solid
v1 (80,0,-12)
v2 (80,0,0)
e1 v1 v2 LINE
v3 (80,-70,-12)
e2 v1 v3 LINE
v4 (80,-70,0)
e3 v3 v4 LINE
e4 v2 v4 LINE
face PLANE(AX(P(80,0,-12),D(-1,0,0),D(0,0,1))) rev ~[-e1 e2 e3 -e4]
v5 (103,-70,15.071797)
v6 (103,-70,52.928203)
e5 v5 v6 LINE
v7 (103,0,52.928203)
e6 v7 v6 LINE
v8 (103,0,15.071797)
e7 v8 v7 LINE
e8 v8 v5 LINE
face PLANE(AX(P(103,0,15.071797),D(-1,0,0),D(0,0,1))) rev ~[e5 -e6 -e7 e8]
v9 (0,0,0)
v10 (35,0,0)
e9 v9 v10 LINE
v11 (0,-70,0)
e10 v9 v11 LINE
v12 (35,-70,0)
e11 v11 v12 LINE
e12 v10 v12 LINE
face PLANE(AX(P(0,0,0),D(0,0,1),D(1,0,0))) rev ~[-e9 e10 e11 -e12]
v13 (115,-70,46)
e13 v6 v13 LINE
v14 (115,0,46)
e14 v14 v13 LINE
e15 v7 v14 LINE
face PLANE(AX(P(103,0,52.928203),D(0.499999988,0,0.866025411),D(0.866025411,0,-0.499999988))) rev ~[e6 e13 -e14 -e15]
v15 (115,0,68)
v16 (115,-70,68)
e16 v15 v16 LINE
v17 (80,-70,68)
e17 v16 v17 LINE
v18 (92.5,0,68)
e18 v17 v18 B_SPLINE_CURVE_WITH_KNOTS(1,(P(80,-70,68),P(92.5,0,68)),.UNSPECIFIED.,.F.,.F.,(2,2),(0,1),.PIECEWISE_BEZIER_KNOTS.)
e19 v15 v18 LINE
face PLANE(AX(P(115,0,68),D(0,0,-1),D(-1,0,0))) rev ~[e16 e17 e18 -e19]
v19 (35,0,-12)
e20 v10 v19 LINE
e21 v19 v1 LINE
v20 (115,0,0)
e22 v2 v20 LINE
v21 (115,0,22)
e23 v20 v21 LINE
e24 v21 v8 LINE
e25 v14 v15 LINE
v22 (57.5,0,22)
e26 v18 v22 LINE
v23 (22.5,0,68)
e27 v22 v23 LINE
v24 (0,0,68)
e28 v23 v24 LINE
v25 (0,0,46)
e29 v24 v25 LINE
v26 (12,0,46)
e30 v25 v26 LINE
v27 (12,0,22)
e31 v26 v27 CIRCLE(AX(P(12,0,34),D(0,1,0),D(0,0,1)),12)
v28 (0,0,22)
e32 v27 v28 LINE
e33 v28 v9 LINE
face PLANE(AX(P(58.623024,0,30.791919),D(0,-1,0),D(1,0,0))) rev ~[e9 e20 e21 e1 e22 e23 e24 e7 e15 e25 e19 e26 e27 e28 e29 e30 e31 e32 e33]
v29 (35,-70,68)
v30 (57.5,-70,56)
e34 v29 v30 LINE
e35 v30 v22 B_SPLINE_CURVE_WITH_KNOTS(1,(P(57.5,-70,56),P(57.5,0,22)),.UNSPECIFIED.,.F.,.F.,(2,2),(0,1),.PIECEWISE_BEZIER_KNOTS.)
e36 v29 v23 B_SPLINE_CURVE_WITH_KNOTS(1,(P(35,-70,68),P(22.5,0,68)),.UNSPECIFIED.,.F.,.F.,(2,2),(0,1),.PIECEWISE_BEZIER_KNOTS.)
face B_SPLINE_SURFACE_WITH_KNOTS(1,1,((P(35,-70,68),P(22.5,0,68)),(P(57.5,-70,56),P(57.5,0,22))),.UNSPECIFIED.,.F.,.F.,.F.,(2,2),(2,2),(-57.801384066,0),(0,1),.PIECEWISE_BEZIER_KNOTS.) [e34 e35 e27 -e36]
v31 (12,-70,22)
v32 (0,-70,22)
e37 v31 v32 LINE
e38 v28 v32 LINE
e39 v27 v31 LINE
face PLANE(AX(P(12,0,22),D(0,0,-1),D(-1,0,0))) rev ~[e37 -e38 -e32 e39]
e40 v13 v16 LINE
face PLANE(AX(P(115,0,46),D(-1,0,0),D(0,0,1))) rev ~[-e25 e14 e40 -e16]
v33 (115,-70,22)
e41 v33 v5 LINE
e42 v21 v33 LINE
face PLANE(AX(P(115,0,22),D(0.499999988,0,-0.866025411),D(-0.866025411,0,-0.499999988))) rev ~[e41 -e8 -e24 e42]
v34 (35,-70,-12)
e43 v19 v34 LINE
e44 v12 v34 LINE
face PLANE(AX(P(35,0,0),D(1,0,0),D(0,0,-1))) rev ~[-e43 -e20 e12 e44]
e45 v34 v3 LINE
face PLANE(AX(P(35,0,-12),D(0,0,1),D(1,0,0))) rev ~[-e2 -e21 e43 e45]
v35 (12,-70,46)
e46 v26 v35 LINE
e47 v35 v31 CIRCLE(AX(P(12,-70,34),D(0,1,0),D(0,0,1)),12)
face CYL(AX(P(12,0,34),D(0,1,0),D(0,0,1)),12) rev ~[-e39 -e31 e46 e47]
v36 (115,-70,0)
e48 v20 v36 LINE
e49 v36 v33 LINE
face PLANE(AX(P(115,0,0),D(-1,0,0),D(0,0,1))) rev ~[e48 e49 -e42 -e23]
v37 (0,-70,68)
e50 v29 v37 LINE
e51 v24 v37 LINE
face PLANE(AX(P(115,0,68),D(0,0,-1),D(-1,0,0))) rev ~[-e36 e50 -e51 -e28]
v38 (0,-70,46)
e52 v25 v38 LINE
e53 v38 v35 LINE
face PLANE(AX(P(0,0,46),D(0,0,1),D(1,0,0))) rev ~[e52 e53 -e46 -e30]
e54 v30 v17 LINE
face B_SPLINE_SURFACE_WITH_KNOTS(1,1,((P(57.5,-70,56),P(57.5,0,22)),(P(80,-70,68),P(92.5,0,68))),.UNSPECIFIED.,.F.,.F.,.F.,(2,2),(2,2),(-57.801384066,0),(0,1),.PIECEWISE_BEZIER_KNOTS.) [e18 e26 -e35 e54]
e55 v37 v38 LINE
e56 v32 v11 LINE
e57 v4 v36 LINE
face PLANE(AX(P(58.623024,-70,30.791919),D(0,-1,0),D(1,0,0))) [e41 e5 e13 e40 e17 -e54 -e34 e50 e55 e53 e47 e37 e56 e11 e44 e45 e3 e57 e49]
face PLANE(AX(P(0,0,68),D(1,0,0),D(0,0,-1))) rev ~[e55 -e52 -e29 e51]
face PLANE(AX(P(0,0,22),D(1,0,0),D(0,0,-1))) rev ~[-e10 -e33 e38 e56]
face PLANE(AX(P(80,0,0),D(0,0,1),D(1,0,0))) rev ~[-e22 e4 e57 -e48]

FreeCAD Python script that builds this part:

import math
import FreeCAD as App
import Part
import Sketcher

V = App.Vector
Q = App.Units.Quantity


def add_polygon(sketch, points):
    """Adds a closed chain of lines whose ends are joined by coincident constraints."""
    first, n = sketch.GeometryCount, len(points)
    for a, b in zip(points, points[1:] + points[:1]):
        sketch.addGeometry(Part.LineSegment(App.Vector(*a, 0), App.Vector(*b, 0)), False)
    for i in range(n):
        sketch.addConstraint(Sketcher.Constraint("Coincident", first + i, 2, first + (i + 1) % n, 1))

doc = App.newDocument("Part")
params = doc.addObject("Spreadsheet::Sheet", "Params")
for row, (alias, value) in enumerate([
    ("sketch1_radius", "12 mm"),
    ("sketch1_width", "35 mm"),
    ("sketch1_width2", "45 mm"),
    ("sketch1_width3", "12 mm"),
    ("sketch1_height", "22 mm"),
    ("pad1_length", "70 mm"),
    ("sketch2_width", "45 mm"),
    ("sketch3_width", "70 mm"),
], start=1):
    params.set(f"A{row}", alias)
    params.set(f"B{row}", "=" + value)
    params.setAlias(f"B{row}", alias)

body = doc.addObject("PartDesign::Body", "Body")

# Sketch on XZ plane
sketch1 = doc.addObject("Sketcher::SketchObject", "Sketch")
body.addObject(sketch1)
sketch1.AttachmentSupport = (doc.XZ_Plane, [""])
sketch1.MapMode = "FlatFace"
sketch1.addGeometry(Part.LineSegment(V(0, 22, 0), V(0, 0, 0)), False)
sketch1.addGeometry(Part.LineSegment(V(0, 0, 0), V(35, 0, 0)), False)
sketch1.addGeometry(Part.LineSegment(V(35, 0, 0), V(35, -12, 0)), False)
sketch1.addGeometry(Part.LineSegment(V(35, -12, 0), V(80, -12, 0)), False)
sketch1.addGeometry(Part.LineSegment(V(80, -12, 0), V(80, 0, 0)), False)
sketch1.addGeometry(Part.LineSegment(V(80, 0, 0), V(115, 0, 0)), False)
sketch1.addGeometry(Part.LineSegment(V(115, 0, 0), V(115, 22, 0)), False)
sketch1.addGeometry(Part.LineSegment(V(115, 22, 0), V(103, 15, 0)), False)
sketch1.addGeometry(Part.LineSegment(V(103, 15, 0), V(103, 53, 0)), False)
sketch1.addGeometry(Part.LineSegment(V(103, 53, 0), V(115, 46, 0)), False)
sketch1.addGeometry(Part.LineSegment(V(115, 46, 0), V(115, 68, 0)), False)
sketch1.addGeometry(Part.LineSegment(V(115, 68, 0), V(0, 68, 0)), False)
sketch1.addGeometry(Part.LineSegment(V(0, 68, 0), V(0, 46, 0)), False)
sketch1.addGeometry(Part.LineSegment(V(0, 46, 0), V(12, 46, 0)), False)
sketch1.addGeometry(Part.ArcOfCircle(Part.Circle(V(12, 34, 0), V(0, 0, 1), 12), math.radians(-90), math.radians(90)), False)
sketch1.addGeometry(Part.LineSegment(V(12, 22, 0), V(0, 22, 0)), False)
sketch1.addConstraint(Sketcher.Constraint("Coincident", 0, 2, 1, 1))
sketch1.addConstraint(Sketcher.Constraint("Coincident", 1, 2, 2, 1))
sketch1.addConstraint(Sketcher.Constraint("Coincident", 2, 2, 3, 1))
sketch1.addConstraint(Sketcher.Constraint("Coincident", 3, 2, 4, 1))
sketch1.addConstraint(Sketcher.Constraint("Coincident", 4, 2, 5, 1))
sketch1.addConstraint(Sketcher.Constraint("Coincident", 5, 2, 6, 1))
sketch1.addConstraint(Sketcher.Constraint("Coincident", 6, 2, 7, 1))
sketch1.addConstraint(Sketcher.Constraint("Coincident", 7, 2, 8, 1))
sketch1.addConstraint(Sketcher.Constraint("Coincident", 8, 2, 9, 1))
sketch1.addConstraint(Sketcher.Constraint("Coincident", 9, 2, 10, 1))
sketch1.addConstraint(Sketcher.Constraint("Coincident", 10, 2, 11, 1))
sketch1.addConstraint(Sketcher.Constraint("Coincident", 11, 2, 12, 1))
sketch1.addConstraint(Sketcher.Constraint("Coincident", 12, 2, 13, 1))
sketch1.addConstraint(Sketcher.Constraint("Tangent", 13, 2, 14, 2))
sketch1.addConstraint(Sketcher.Constraint("Tangent", 14, 1, 15, 1))
sketch1.addConstraint(Sketcher.Constraint("Coincident", 15, 2, 0, 1))
sketch1.addConstraint(Sketcher.Constraint("Vertical", 0))
sketch1.addConstraint(Sketcher.Constraint("Horizontal", 1))
sketch1.addConstraint(Sketcher.Constraint("Vertical", 2))
sketch1.addConstraint(Sketcher.Constraint("Horizontal", 3))
sketch1.addConstraint(Sketcher.Constraint("Vertical", 4))
sketch1.addConstraint(Sketcher.Constraint("Horizontal", 5))
sketch1.addConstraint(Sketcher.Constraint("Vertical", 6))
sketch1.addConstraint(Sketcher.Constraint("Vertical", 8))
sketch1.addConstraint(Sketcher.Constraint("Vertical", 10))
sketch1.addConstraint(Sketcher.Constraint("Horizontal", 11))
sketch1.addConstraint(Sketcher.Constraint("Vertical", 12))
sketch1.addConstraint(Sketcher.Constraint("Horizontal", 13))
sketch1.addConstraint(Sketcher.Constraint("Horizontal", 15))
sketch1.addConstraint(Sketcher.Constraint("Coincident", 0, 2, -1, 1))
sketch1.addConstraint(Sketcher.Constraint("PointOnObject", 4, 2, -1))
sketch1.addConstraint(Sketcher.Constraint("PointOnObject", 11, 2, -2))
sketch1.addConstraint(Sketcher.Constraint("Horizontal", 9, 2, 12, 2))
sketch1.addConstraint(Sketcher.Constraint("Horizontal", 6, 2, 14, 1))
sketch1.addConstraint(Sketcher.Constraint("Vertical", 6, 2, 9, 2))
sketch1.addConstraint(Sketcher.Constraint("Equal", 1, 5))
sketch1.addConstraint(Sketcher.Constraint("Equal", 15, 2))
sketch1.addConstraint(Sketcher.Constraint("Equal", 6, 10))
sketch1.addConstraint(Sketcher.Constraint("Equal", 7, 9))
sketch1.addConstraint(Sketcher.Constraint("Radius", 14, Q("12 mm")))
sketch1.addConstraint(Sketcher.Constraint("DistanceX", 1, 1, 1, 2, Q("35 mm")))
sketch1.addConstraint(Sketcher.Constraint("DistanceX", 3, 1, 3, 2, Q("45 mm")))
sketch1.addConstraint(Sketcher.Constraint("DistanceX", 13, 1, 13, 2, Q("12 mm")))
sketch1.addConstraint(Sketcher.Constraint("DistanceY", 0, 2, 0, 1, Q("22 mm")))
sketch1.addConstraint(Sketcher.Constraint("Angle", 7, Q("-150.000001 deg")))
sketch1.addConstraint(Sketcher.Constraint("DistanceX", -1, 1, 7, 2, Q("103 mm")))
sketch1.setExpression("Constraints[39]", "Params.sketch1_radius")
sketch1.setExpression("Constraints[40]", "Params.sketch1_width")
sketch1.setExpression("Constraints[41]", "Params.sketch1_width2")
sketch1.setExpression("Constraints[42]", "Params.sketch1_width3")
sketch1.setExpression("Constraints[43]", "Params.sketch1_height")
pad1 = doc.addObject("PartDesign::Pad", "Pad")
body.addObject(pad1)
pad1.Profile = sketch1
pad1.setExpression("Length", "Params.pad1_length")

# Sketch on XZ plane
sketch2 = doc.addObject("Sketcher::SketchObject", "Sketch001")
body.addObject(sketch2)
sketch2.AttachmentSupport = (doc.XZ_Plane, [""])
sketch2.MapMode = "FlatFace"
sketch2.AttachmentOffset = App.Placement(V(0, 0, 70), App.Rotation())
add_polygon(sketch2, [(80, 68), (35, 68), (58, 56)])  # lines 0-2
sketch2.addConstraint(Sketcher.Constraint("Horizontal", 0))
sketch2.addConstraint(Sketcher.Constraint("Equal", 1, 2))
sketch2.addConstraint(Sketcher.Constraint("DistanceX", 0, 2, 0, 1, Q("45 mm")))
sketch2.addConstraint(Sketcher.Constraint("DistanceX", -1, 1, 0, 2, Q("35 mm")))
sketch2.addConstraint(Sketcher.Constraint("DistanceY", -1, 1, 0, 2, Q("68 mm")))
sketch2.addConstraint(Sketcher.Constraint("DistanceY", -1, 1, 1, 2, Q("56 mm")))
sketch2.setExpression("Constraints[5]", "Params.sketch2_width")

# Sketch on XZ plane
sketch3 = doc.addObject("Sketcher::SketchObject", "Sketch002")
body.addObject(sketch3)
sketch3.AttachmentSupport = (doc.XZ_Plane, [""])
sketch3.MapMode = "FlatFace"
add_polygon(sketch3, [(22, 68), (92, 68), (58, 22)])  # lines 0-2
sketch3.addConstraint(Sketcher.Constraint("Horizontal", 0))
sketch3.addConstraint(Sketcher.Constraint("Equal", 1, 2))
sketch3.addConstraint(Sketcher.Constraint("DistanceX", 0, 1, 0, 2, Q("70 mm")))
sketch3.addConstraint(Sketcher.Constraint("DistanceY", -1, 1, 0, 2, Q("68 mm")))
sketch3.addConstraint(Sketcher.Constraint("DistanceY", -1, 1, 1, 2, Q("22 mm")))
sketch3.addConstraint(Sketcher.Constraint("DistanceX", -1, 1, 0, 2, Q("92.5 mm")))
sketch3.setExpression("Constraints[5]", "Params.sketch3_width")

subtractiveloft = doc.addObject("PartDesign::SubtractiveLoft", "SubtractiveLoft")
body.addObject(subtractiveloft)
subtractiveloft.Profile = sketch2
subtractiveloft.Sections = [sketch3]

doc.recompute()
